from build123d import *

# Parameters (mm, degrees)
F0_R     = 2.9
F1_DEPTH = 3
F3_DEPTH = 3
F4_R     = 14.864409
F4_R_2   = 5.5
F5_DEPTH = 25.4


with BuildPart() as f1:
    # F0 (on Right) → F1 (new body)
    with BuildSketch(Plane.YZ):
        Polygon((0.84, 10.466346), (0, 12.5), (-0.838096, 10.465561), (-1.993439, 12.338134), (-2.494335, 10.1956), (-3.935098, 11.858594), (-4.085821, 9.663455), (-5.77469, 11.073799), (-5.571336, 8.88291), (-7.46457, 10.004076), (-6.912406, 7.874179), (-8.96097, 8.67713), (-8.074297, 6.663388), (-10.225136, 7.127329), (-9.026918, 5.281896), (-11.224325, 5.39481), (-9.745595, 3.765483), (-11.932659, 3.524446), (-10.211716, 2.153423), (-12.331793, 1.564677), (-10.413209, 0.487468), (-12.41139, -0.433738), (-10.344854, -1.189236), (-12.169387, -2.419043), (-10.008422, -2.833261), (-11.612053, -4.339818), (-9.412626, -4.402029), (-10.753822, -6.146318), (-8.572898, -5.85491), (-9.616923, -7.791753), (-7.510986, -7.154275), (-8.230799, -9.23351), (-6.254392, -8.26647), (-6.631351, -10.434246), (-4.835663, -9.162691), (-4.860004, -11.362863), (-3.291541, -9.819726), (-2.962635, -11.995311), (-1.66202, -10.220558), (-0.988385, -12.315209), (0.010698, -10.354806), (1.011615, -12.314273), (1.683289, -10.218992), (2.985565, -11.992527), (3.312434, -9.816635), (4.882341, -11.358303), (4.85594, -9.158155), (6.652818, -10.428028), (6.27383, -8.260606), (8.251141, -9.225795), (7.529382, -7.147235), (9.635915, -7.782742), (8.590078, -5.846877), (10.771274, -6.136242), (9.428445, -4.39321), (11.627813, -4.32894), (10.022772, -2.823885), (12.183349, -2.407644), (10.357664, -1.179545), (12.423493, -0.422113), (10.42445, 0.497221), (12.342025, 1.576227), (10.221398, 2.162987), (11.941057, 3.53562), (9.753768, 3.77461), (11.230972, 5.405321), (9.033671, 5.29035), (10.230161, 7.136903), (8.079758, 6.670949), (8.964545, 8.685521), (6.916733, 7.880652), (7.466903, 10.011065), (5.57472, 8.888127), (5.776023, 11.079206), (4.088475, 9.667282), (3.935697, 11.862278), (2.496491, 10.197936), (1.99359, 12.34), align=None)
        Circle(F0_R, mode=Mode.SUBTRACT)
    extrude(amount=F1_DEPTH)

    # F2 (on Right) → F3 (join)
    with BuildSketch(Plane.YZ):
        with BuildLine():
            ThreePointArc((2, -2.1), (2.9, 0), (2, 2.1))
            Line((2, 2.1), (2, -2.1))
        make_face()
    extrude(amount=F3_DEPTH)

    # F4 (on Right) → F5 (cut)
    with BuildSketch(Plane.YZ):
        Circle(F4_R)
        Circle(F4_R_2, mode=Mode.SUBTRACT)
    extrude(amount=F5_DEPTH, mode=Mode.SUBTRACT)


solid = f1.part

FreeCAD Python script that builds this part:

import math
import FreeCAD as App
import Part
import Sketcher

V = App.Vector
Q = App.Units.Quantity


def add_polygon(sketch, points):
    """Adds a closed chain of lines whose ends are joined by coincident constraints."""
    first, n = sketch.GeometryCount, len(points)
    for a, b in zip(points, points[1:] + points[:1]):
        sketch.addGeometry(Part.LineSegment(App.Vector(*a, 0), App.Vector(*b, 0)), False)
    for i in range(n):
        sketch.addConstraint(Sketcher.Constraint("Coincident", first + i, 2, first + (i + 1) % n, 1))

doc = App.newDocument("Part")
body = doc.addObject("PartDesign::Body", "Body")

sketch1 = body.newObject("Sketcher::SketchObject", "Sketch")
sketch1.AttachmentSupport = (doc.getObject("YZ_Plane"), [""])
sketch1.MapMode = "FlatFace"
add_polygon(sketch1, [(0.84, 10.466346), (0, 12.5), (-0.838096, 10.465561), (-1.993439, 12.338134), (-2.494335, 10.1956), (-3.935098, 11.858594), (-4.085821, 9.663455), (-5.77469, 11.073799), (-5.571336, 8.88291), (-7.46457, 10.004076), (-6.912406, 7.874179), (-8.96097, 8.67713), (-8.074297, 6.663388), (-10.225136, 7.127329), (-9.026918, 5.281896), (-11.224325, 5.39481), (-9.745595, 3.765483), (-11.932659, 3.524446), (-10.211716, 2.153423), (-12.331793, 1.564677), (-10.413209, 0.487468), (-12.41139, -0.433738), (-10.344854, -1.189236), (-12.169387, -2.419043), (-10.008422, -2.833261), (-11.612053, -4.339818), (-9.412626, -4.402029), (-10.753822, -6.146318), (-8.572898, -5.85491), (-9.616923, -7.791753), (-7.510986, -7.154275), (-8.230799, -9.23351), (-6.254392, -8.26647), (-6.631351, -10.434246), (-4.835663, -9.162691), (-4.860004, -11.362863), (-3.291541, -9.819726), (-2.962635, -11.995311), (-1.66202, -10.220558), (-0.988385, -12.315209), (0.010698, -10.354806), (1.011615, -12.314273), (1.683289, -10.218992), (2.985565, -11.992527), (3.312434, -9.816635), (4.882341, -11.358303), (4.85594, -9.158155), (6.652818, -10.428028), (6.27383, -8.260606), (8.251141, -9.225795), (7.529382, -7.147235), (9.635915, -7.782742), (8.590078, -5.846877), (10.771274, -6.136242), (9.428445, -4.39321), (11.627813, -4.32894), (10.022772, -2.823885), (12.183349, -2.407644), (10.357664, -1.179545), (12.423493, -0.422113), (10.42445, 0.497221), (12.342025, 1.576227), (10.221398, 2.162987), (11.941057, 3.53562), (9.753768, 3.77461), (11.230972, 5.405321), (9.033671, 5.29035), (10.230161, 7.136903), (8.079758, 6.670949), (8.964545, 8.685521), (6.916733, 7.880652), (7.466903, 10.011065), (5.57472, 8.888127), (5.776023, 11.079206), (4.088475, 9.667282), (3.935697, 11.862278), (2.496491, 10.197936), (1.99359, 12.34)])
sketch1.addGeometry(Part.Circle(V(0, 0, 0), V(0, 0, 1), 2.9), False)
sketch1.addConstraint(Sketcher.Constraint("Coincident", 78, 3, -1, 1))
sketch1.addConstraint(Sketcher.Constraint("PointOnObject", 0, 2, -2))
sketch1.addConstraint(Sketcher.Constraint("Diameter", 78, Q("5.8 mm")))
sketch1.addConstraint(Sketcher.Constraint("DistanceY", -1, 1, 0, 2, Q("12.5 mm")))
sketch1.addConstraint(Sketcher.Constraint("DistanceY", -1, 1, 76, 2, Q("12.34 mm")))
sketch1.addConstraint(Sketcher.Constraint("DistanceX", -1, 1, 77, 2, Q("0.84 mm")))
sketch1.addConstraint(Sketcher.Constraint("DistanceY", -1, 1, 3, 2, Q("10.1956 mm")))
sketch1.addConstraint(Sketcher.Constraint("DistanceX", 4, 2, -1, 1, Q("3.935098 mm")))
sketch1.addConstraint(Sketcher.Constraint("DistanceY", -1, 1, 6, 2, Q("11.073799 mm")))
sketch1.addConstraint(Sketcher.Constraint("DistanceX", 30, 2, -1, 1, Q("8.230799 mm")))
sketch1.addConstraint(Sketcher.Constraint("DistanceX", -1, 1, 61, 2, Q("10.221398 mm")))
sketch1.addConstraint(Sketcher.Constraint("DistanceY", -1, 1, 1, 2, Q("10.465561 mm")))
sketch1.addConstraint(Sketcher.Constraint("DistanceX", 2, 2, -1, 1, Q("1.993439 mm")))
sketch1.addConstraint(Sketcher.Constraint("DistanceX", 5, 2, -1, 1, Q("4.085821 mm")))
sketch1.addConstraint(Sketcher.Constraint("DistanceX", 6, 2, -1, 1, Q("5.77469 mm")))
sketch1.addConstraint(Sketcher.Constraint("DistanceY", -1, 1, 7, 2, Q("8.88291 mm")))
sketch1.addConstraint(Sketcher.Constraint("DistanceX", 8, 2, -1, 1, Q("7.46457 mm")))
sketch1.addConstraint(Sketcher.Constraint("DistanceY", -1, 1, 9, 2, Q("7.874179 mm")))
sketch1.addConstraint(Sketcher.Constraint("DistanceX", 10, 2, -1, 1, Q("8.96097 mm")))
sketch1.addConstraint(Sketcher.Constraint("DistanceY", -1, 1, 10, 2, Q("8.67713 mm")))
sketch1.addConstraint(Sketcher.Constraint("DistanceY", -1, 1, 11, 2, Q("6.663388 mm")))
sketch1.addConstraint(Sketcher.Constraint("DistanceY", -1, 1, 12, 2, Q("7.127329 mm")))
sketch1.addConstraint(Sketcher.Constraint("DistanceY", -1, 1, 14, 2, Q("5.39481 mm")))
sketch1.addConstraint(Sketcher.Constraint("DistanceX", 16, 2, -1, 1, Q("11.932659 mm")))
sketch1.addConstraint(Sketcher.Constraint("DistanceX", 19, 2, -1, 1, Q("10.413209 mm")))
sketch1.addConstraint(Sketcher.Constraint("DistanceX", 20, 2, -1, 1, Q("12.41139 mm")))
sketch1.addConstraint(Sketcher.Constraint("DistanceY", 23, 2, -1, 1, Q("2.833261 mm")))
sketch1.addConstraint(Sketcher.Constraint("DistanceY", 24, 2, -1, 1, Q("4.339818 mm")))
sketch1.addConstraint(Sketcher.Constraint("DistanceY", 25, 2, -1, 1, Q("4.402029 mm")))
sketch1.addConstraint(Sketcher.Constraint("DistanceY", 27, 2, -1, 1, Q("5.85491 mm")))
sketch1.addConstraint(Sketcher.Constraint("DistanceY", 30, 2, -1, 1, Q("9.23351 mm")))
sketch1.addConstraint(Sketcher.Constraint("DistanceY", 31, 2, -1, 1, Q("8.26647 mm")))
sketch1.addConstraint(Sketcher.Constraint("DistanceX", 32, 2, -1, 1, Q("6.631351 mm")))
sketch1.addConstraint(Sketcher.Constraint("DistanceY", 33, 2, -1, 1, Q("9.162691 mm")))
sketch1.addConstraint(Sketcher.Constraint("DistanceX", 35, 2, -1, 1, Q("3.291541 mm")))
sketch1.addConstraint(Sketcher.Constraint("DistanceY", 36, 2, -1, 1, Q("11.995311 mm")))
sketch1.addConstraint(Sketcher.Constraint("DistanceX", 37, 2, -1, 1, Q("1.66202 mm")))
sketch1.addConstraint(Sketcher.Constraint("DistanceY", 38, 2, -1, 1, Q("12.315209 mm")))
sketch1.addConstraint(Sketcher.Constraint("DistanceX", -1, 1, 41, 2, Q("1.683289 mm")))
sketch1.addConstraint(Sketcher.Constraint("DistanceX", -1, 1, 44, 2, Q("4.882341 mm")))
sketch1.addConstraint(Sketcher.Constraint("DistanceX", -1, 1, 45, 2, Q("4.85594 mm")))
sketch1.addConstraint(Sketcher.Constraint("DistanceX", -1, 1, 47, 2, Q("6.27383 mm")))
sketch1.addConstraint(Sketcher.Constraint("DistanceX", -1, 1, 48, 2, Q("8.251141 mm")))
sketch1.addConstraint(Sketcher.Constraint("DistanceY", 50, 2, -1, 1, Q("7.782742 mm")))
sketch1.addConstraint(Sketcher.Constraint("DistanceY", 53, 2, -1, 1, Q("4.39321 mm")))
sketch1.addConstraint(Sketcher.Constraint("DistanceY", 54, 2, -1, 1, Q("4.32894 mm")))
sketch1.addConstraint(Sketcher.Constraint("DistanceX", -1, 1, 56, 2, Q("12.183349 mm")))
sketch1.addConstraint(Sketcher.Constraint("DistanceX", -1, 1, 59, 2, Q("10.42445 mm")))
sketch1.addConstraint(Sketcher.Constraint("DistanceY", -1, 1, 59, 2, Q("0.497221 mm")))
sketch1.addConstraint(Sketcher.Constraint("DistanceY", -1, 1, 62, 2, Q("3.53562 mm")))
sketch1.addConstraint(Sketcher.Constraint("DistanceX", -1, 1, 63, 2, Q("9.753768 mm")))
sketch1.addConstraint(Sketcher.Constraint("DistanceY", -1, 1, 63, 2, Q("3.77461 mm")))
sketch1.addConstraint(Sketcher.Constraint("DistanceY", -1, 1, 64, 2, Q("5.405321 mm")))
sketch1.addConstraint(Sketcher.Constraint("DistanceX", -1, 1, 65, 2, Q("9.033671 mm")))
sketch1.addConstraint(Sketcher.Constraint("DistanceY", -1, 1, 65, 2, Q("5.29035 mm")))
sketch1.addConstraint(Sketcher.Constraint("DistanceX", -1, 1, 66, 2, Q("10.230161 mm")))
sketch1.addConstraint(Sketcher.Constraint("DistanceY", -1, 1, 67, 2, Q("6.670949 mm")))
sketch1.addConstraint(Sketcher.Constraint("DistanceY", -1, 1, 68, 2, Q("8.685521 mm")))
sketch1.addConstraint(Sketcher.Constraint("DistanceX", -1, 1, 71, 2, Q("5.57472 mm")))
sketch1.addConstraint(Sketcher.Constraint("DistanceX", -1, 1, 75, 2, Q("2.496491 mm")))
sketch1.addConstraint(Sketcher.Constraint("DistanceX", -1, 1, 76, 2, Q("1.99359 mm")))
sketch1.addConstraint(Sketcher.Constraint("Distance", 0, Q("2.200306 mm")))
sketch1.addConstraint(Sketcher.Constraint("Distance", 1, Q("2.200306 mm")))
sketch1.addConstraint(Sketcher.Constraint("Distance", 2, Q("2.200306 mm")))
sketch1.addConstraint(Sketcher.Constraint("Distance", 3, Q("2.200307 mm")))
sketch1.addConstraint(Sketcher.Constraint("Distance", 4, Q("2.200306 mm")))
sketch1.addConstraint(Sketcher.Constraint("Distance", 5, Q("2.200307 mm")))
sketch1.addConstraint(Sketcher.Constraint("Distance", 7, Q("2.200306 mm")))
sketch1.addConstraint(Sketcher.Constraint("Distance", 8, Q("2.200306 mm")))
sketch1.addConstraint(Sketcher.Constraint("Distance", 9, Q("2.200306 mm")))
sketch1.addConstraint(Sketcher.Constraint("Distance", 11, Q("2.200306 mm")))
sketch1.addConstraint(Sketcher.Constraint("Distance", 12, Q("2.200307 mm")))
sketch1.addConstraint(Sketcher.Constraint("Distance", 13, Q("2.200307 mm")))
sketch1.addConstraint(Sketcher.Constraint("Distance", 14, Q("2.200306 mm")))
sketch1.addConstraint(Sketcher.Constraint("Distance", 15, Q("2.200307 mm")))
sketch1.addConstraint(Sketcher.Constraint("Distance", 16, Q("2.200306 mm")))
sketch1.addConstraint(Sketcher.Constraint("Distance", 17, Q("2.200307 mm")))
sketch1.addConstraint(Sketcher.Constraint("Distance", 18, Q("2.200306 mm")))
sketch1.addConstraint(Sketcher.Constraint("Distance", 19, Q("2.200305 mm")))
sketch1.addConstraint(Sketcher.Constraint("Distance", 20, Q("2.200306 mm")))
sketch1.addConstraint(Sketcher.Constraint("Distance", 21, Q("2.200306 mm")))
sketch1.addConstraint(Sketcher.Constraint("Distance", 22, Q("2.200306 mm")))
sketch1.addConstraint(Sketcher.Constraint("Distance", 23, Q("2.200306 mm")))
sketch1.addConstraint(Sketcher.Constraint("Distance", 24, Q("2.200306 mm")))
sketch1.addConstraint(Sketcher.Constraint("Distance", 25, Q("2.200307 mm")))
sketch1.addConstraint(Sketcher.Constraint("Distance", 26, Q("2.200307 mm")))
sketch1.addConstraint(Sketcher.Constraint("Distance", 27, Q("2.200306 mm")))
sketch1.addConstraint(Sketcher.Constraint("Distance", 28, Q("2.200307 mm")))
sketch1.addConstraint(Sketcher.Constraint("Distance", 29, Q("2.200307 mm")))
sketch1.addConstraint(Sketcher.Constraint("Distance", 30, Q("2.200307 mm")))
sketch1.addConstraint(Sketcher.Constraint("Distance", 31, Q("2.200307 mm")))
sketch1.addConstraint(Sketcher.Constraint("Distance", 32, Q("2.200307 mm")))
sketch1.addConstraint(Sketcher.Constraint("Distance", 33, Q("2.200306 mm")))
sketch1.addConstraint(Sketcher.Constraint("Distance", 34, Q("2.200307 mm")))
sketch1.addConstraint(Sketcher.Constraint("Distance", 35, Q("2.200306 mm")))
sketch1.addConstraint(Sketcher.Constraint("Distance", 36, Q("2.200307 mm")))
sketch1.addConstraint(Sketcher.Constraint("Distance", 37, Q("2.200306 mm")))
sketch1.addConstraint(Sketcher.Constraint("Distance", 38, Q("2.200306 mm")))
sketch1.addConstraint(Sketcher.Constraint("Distance", 39, Q("2.200306 mm")))
sketch1.addConstraint(Sketcher.Constraint("Distance", 40, Q("2.200306 mm")))
sketch1.addConstraint(Sketcher.Constraint("Distance", 41, Q("2.200306 mm")))
sketch1.addConstraint(Sketcher.Constraint("Distance", 42, Q("2.200307 mm")))
sketch1.addConstraint(Sketcher.Constraint("Distance", 43, Q("2.200307 mm")))
sketch1.addConstraint(Sketcher.Constraint("Distance", 44, Q("2.200306 mm")))
sketch1.addConstraint(Sketcher.Constraint("Distance", 45, Q("2.200306 mm")))
sketch1.addConstraint(Sketcher.Constraint("Distance", 46, Q("2.200306 mm")))
sketch1.addConstraint(Sketcher.Constraint("Distance", 47, Q("2.200307 mm")))
sketch1.addConstraint(Sketcher.Constraint("Distance", 48, Q("2.200306 mm")))
sketch1.addConstraint(Sketcher.Constraint("Distance", 49, Q("2.200306 mm")))
sketch1.addConstraint(Sketcher.Constraint("Distance", 50, Q("2.200307 mm")))
sketch1.addConstraint(Sketcher.Constraint("Distance", 51, Q("2.200306 mm")))
sketch1.addConstraint(Sketcher.Constraint("Distance", 52, Q("2.200306 mm")))
sketch1.addConstraint(Sketcher.Constraint("Distance", 53, Q("2.200307 mm")))
sketch1.addConstraint(Sketcher.Constraint("Distance", 54, Q("2.200307 mm")))
sketch1.addConstraint(Sketcher.Constraint("Distance", 55, Q("2.200306 mm")))
sketch1.addConstraint(Sketcher.Constraint("Distance", 56, Q("2.200307 mm")))
sketch1.addConstraint(Sketcher.Constraint("Distance", 57, Q("2.200307 mm")))
sketch1.addConstraint(Sketcher.Constraint("Distance", 58, Q("2.200307 mm")))
sketch1.addConstraint(Sketcher.Constraint("Distance", 59, Q("2.200306 mm")))
sketch1.addConstraint(Sketcher.Constraint("Distance", 60, Q("2.200306 mm")))
sketch1.addConstraint(Sketcher.Constraint("Distance", 61, Q("2.200306 mm")))
sketch1.addConstraint(Sketcher.Constraint("Distance", 62, Q("2.200306 mm")))
sketch1.addConstraint(Sketcher.Constraint("Distance", 63, Q("2.200307 mm")))
sketch1.addConstraint(Sketcher.Constraint("Distance", 64, Q("2.200307 mm")))
sketch1.addConstraint(Sketcher.Constraint("Distance", 66, Q("2.200306 mm")))
sketch1.addConstraint(Sketcher.Constraint("Distance", 67, Q("2.200306 mm")))
sketch1.addConstraint(Sketcher.Constraint("Distance", 68, Q("2.200306 mm")))
sketch1.addConstraint(Sketcher.Constraint("Distance", 69, Q("2.200306 mm")))
sketch1.addConstraint(Sketcher.Constraint("Distance", 70, Q("2.200306 mm")))
sketch1.addConstraint(Sketcher.Constraint("Distance", 71, Q("2.200306 mm")))
sketch1.addConstraint(Sketcher.Constraint("Distance", 72, Q("2.200307 mm")))
sketch1.addConstraint(Sketcher.Constraint("Distance", 73, Q("2.200306 mm")))
sketch1.addConstraint(Sketcher.Constraint("Distance", 74, Q("2.200306 mm")))
sketch1.addConstraint(Sketcher.Constraint("Distance", 75, Q("2.200306 mm")))
sketch1.addConstraint(Sketcher.Constraint("Distance", 76, Q("2.200306 mm")))
sketch1.addConstraint(Sketcher.Constraint("DistanceX", 13, 2, -1, 1, Q("9.026918 mm")))
sketch1.addConstraint(Sketcher.Constraint("DistanceX", 15, 2, -1, 1, Q("9.745595 mm")))
sketch1.addConstraint(Sketcher.Constraint("DistanceX", 17, 2, -1, 1, Q("10.211716 mm")))
sketch1.addConstraint(Sketcher.Constraint("DistanceX", 18, 2, -1, 1, Q("12.331793 mm")))
sketch1.addConstraint(Sketcher.Constraint("DistanceX", 21, 2, -1, 1, Q("10.344854 mm")))
sketch1.addConstraint(Sketcher.Constraint("DistanceX", 22, 2, -1, 1, Q("12.169387 mm")))
sketch1.addConstraint(Sketcher.Constraint("DistanceX", 26, 2, -1, 1, Q("10.753822 mm")))
sketch1.addConstraint(Sketcher.Constraint("DistanceX", 28, 2, -1, 1, Q("9.616923 mm")))
sketch1.addConstraint(Sketcher.Constraint("DistanceX", 34, 2, -1, 1, Q("4.860004 mm")))
sketch1.addConstraint(Sketcher.Constraint("DistanceX", -1, 1, 39, 2, Q("0.010698 mm")))
sketch1.addConstraint(Sketcher.Constraint("DistanceX", -1, 1, 40, 2, Q("1.011615 mm")))
sketch1.addConstraint(Sketcher.Constraint("DistanceX", -1, 1, 42, 2, Q("2.985565 mm")))
sketch1.addConstraint(Sketcher.Constraint("DistanceX", -1, 1, 43, 2, Q("3.312434 mm")))
sketch1.addConstraint(Sketcher.Constraint("DistanceX", -1, 1, 46, 2, Q("6.652818 mm")))
sketch1.addConstraint(Sketcher.Constraint("DistanceX", -1, 1, 49, 2, Q("7.529382 mm")))
sketch1.addConstraint(Sketcher.Constraint("DistanceX", -1, 1, 51, 2, Q("8.590078 mm")))
sketch1.addConstraint(Sketcher.Constraint("DistanceX", -1, 1, 52, 2, Q("10.771274 mm")))
sketch1.addConstraint(Sketcher.Constraint("DistanceX", -1, 1, 55, 2, Q("10.022772 mm")))
sketch1.addConstraint(Sketcher.Constraint("DistanceX", -1, 1, 57, 2, Q("10.357664 mm")))
sketch1.addConstraint(Sketcher.Constraint("DistanceX", -1, 1, 69, 2, Q("6.916733 mm")))
sketch1.addConstraint(Sketcher.Constraint("DistanceX", -1, 1, 70, 2, Q("7.466903 mm")))
sketch1.addConstraint(Sketcher.Constraint("DistanceX", -1, 1, 72, 2, Q("5.776023 mm")))
sketch1.addConstraint(Sketcher.Constraint("DistanceX", -1, 1, 73, 2, Q("4.088475 mm")))
pad1 = body.newObject("PartDesign::Pad", "Pad")
pad1.Profile = sketch1
pad1.Length = 3

sketch2 = body.newObject("Sketcher::SketchObject", "Sketch001")
sketch2.AttachmentSupport = (doc.getObject("YZ_Plane"), [""])
sketch2.MapMode = "FlatFace"
sketch2.addGeometry(Part.ArcOfCircle(Part.Circle(V(0, 0, 0), V(0, 0, 1), 2.9), math.radians(-46), math.radians(46)), False)
sketch2.addGeometry(Part.LineSegment(V(2, 2.1, 0), V(2, -2.1, 0)), False)
sketch2.addConstraint(Sketcher.Constraint("Coincident", 0, 1, 1, 2))
sketch2.addConstraint(Sketcher.Constraint("Coincident", 1, 1, 0, 2))
sketch2.addConstraint(Sketcher.Constraint("Vertical", 1))
sketch2.addConstraint(Sketcher.Constraint("Coincident", 0, 3, -1, 1))
sketch2.addConstraint(Sketcher.Constraint("Radius", 0, Q("2.9 mm")))
sketch2.addConstraint(Sketcher.Constraint("DistanceY", 1, 2, 1, 1, Q("4.2 mm")))
pad2 = body.newObject("PartDesign::Pad", "Pad001")
pad2.Profile = sketch2
pad2.Length = 3

sketch3 = body.newObject("Sketcher::SketchObject", "Sketch002")
sketch3.AttachmentSupport = (doc.getObject("YZ_Plane"), [""])
sketch3.MapMode = "FlatFace"
sketch3.addGeometry(Part.Circle(V(0, 0, 0), V(0, 0, 1), 15), False)
sketch3.addGeometry(Part.Circle(V(0, 0, 0), V(0, 0, 1), 6), False)
sketch3.addConstraint(Sketcher.Constraint("Coincident", 0, 3, -1, 1))
sketch3.addConstraint(Sketcher.Constraint("Coincident", 1, 3, -1, 1))
sketch3.addConstraint(Sketcher.Constraint("Diameter", 1, Q("11 mm")))
sketch3.addConstraint(Sketcher.Constraint("Diameter", 0, Q("29.728818 mm")))
pocket1 = body.newObject("PartDesign::Pocket", "Pocket")
pocket1.Profile = sketch3
pocket1.Length = 25.4
pocket1.Reversed = True

doc.recompute()
